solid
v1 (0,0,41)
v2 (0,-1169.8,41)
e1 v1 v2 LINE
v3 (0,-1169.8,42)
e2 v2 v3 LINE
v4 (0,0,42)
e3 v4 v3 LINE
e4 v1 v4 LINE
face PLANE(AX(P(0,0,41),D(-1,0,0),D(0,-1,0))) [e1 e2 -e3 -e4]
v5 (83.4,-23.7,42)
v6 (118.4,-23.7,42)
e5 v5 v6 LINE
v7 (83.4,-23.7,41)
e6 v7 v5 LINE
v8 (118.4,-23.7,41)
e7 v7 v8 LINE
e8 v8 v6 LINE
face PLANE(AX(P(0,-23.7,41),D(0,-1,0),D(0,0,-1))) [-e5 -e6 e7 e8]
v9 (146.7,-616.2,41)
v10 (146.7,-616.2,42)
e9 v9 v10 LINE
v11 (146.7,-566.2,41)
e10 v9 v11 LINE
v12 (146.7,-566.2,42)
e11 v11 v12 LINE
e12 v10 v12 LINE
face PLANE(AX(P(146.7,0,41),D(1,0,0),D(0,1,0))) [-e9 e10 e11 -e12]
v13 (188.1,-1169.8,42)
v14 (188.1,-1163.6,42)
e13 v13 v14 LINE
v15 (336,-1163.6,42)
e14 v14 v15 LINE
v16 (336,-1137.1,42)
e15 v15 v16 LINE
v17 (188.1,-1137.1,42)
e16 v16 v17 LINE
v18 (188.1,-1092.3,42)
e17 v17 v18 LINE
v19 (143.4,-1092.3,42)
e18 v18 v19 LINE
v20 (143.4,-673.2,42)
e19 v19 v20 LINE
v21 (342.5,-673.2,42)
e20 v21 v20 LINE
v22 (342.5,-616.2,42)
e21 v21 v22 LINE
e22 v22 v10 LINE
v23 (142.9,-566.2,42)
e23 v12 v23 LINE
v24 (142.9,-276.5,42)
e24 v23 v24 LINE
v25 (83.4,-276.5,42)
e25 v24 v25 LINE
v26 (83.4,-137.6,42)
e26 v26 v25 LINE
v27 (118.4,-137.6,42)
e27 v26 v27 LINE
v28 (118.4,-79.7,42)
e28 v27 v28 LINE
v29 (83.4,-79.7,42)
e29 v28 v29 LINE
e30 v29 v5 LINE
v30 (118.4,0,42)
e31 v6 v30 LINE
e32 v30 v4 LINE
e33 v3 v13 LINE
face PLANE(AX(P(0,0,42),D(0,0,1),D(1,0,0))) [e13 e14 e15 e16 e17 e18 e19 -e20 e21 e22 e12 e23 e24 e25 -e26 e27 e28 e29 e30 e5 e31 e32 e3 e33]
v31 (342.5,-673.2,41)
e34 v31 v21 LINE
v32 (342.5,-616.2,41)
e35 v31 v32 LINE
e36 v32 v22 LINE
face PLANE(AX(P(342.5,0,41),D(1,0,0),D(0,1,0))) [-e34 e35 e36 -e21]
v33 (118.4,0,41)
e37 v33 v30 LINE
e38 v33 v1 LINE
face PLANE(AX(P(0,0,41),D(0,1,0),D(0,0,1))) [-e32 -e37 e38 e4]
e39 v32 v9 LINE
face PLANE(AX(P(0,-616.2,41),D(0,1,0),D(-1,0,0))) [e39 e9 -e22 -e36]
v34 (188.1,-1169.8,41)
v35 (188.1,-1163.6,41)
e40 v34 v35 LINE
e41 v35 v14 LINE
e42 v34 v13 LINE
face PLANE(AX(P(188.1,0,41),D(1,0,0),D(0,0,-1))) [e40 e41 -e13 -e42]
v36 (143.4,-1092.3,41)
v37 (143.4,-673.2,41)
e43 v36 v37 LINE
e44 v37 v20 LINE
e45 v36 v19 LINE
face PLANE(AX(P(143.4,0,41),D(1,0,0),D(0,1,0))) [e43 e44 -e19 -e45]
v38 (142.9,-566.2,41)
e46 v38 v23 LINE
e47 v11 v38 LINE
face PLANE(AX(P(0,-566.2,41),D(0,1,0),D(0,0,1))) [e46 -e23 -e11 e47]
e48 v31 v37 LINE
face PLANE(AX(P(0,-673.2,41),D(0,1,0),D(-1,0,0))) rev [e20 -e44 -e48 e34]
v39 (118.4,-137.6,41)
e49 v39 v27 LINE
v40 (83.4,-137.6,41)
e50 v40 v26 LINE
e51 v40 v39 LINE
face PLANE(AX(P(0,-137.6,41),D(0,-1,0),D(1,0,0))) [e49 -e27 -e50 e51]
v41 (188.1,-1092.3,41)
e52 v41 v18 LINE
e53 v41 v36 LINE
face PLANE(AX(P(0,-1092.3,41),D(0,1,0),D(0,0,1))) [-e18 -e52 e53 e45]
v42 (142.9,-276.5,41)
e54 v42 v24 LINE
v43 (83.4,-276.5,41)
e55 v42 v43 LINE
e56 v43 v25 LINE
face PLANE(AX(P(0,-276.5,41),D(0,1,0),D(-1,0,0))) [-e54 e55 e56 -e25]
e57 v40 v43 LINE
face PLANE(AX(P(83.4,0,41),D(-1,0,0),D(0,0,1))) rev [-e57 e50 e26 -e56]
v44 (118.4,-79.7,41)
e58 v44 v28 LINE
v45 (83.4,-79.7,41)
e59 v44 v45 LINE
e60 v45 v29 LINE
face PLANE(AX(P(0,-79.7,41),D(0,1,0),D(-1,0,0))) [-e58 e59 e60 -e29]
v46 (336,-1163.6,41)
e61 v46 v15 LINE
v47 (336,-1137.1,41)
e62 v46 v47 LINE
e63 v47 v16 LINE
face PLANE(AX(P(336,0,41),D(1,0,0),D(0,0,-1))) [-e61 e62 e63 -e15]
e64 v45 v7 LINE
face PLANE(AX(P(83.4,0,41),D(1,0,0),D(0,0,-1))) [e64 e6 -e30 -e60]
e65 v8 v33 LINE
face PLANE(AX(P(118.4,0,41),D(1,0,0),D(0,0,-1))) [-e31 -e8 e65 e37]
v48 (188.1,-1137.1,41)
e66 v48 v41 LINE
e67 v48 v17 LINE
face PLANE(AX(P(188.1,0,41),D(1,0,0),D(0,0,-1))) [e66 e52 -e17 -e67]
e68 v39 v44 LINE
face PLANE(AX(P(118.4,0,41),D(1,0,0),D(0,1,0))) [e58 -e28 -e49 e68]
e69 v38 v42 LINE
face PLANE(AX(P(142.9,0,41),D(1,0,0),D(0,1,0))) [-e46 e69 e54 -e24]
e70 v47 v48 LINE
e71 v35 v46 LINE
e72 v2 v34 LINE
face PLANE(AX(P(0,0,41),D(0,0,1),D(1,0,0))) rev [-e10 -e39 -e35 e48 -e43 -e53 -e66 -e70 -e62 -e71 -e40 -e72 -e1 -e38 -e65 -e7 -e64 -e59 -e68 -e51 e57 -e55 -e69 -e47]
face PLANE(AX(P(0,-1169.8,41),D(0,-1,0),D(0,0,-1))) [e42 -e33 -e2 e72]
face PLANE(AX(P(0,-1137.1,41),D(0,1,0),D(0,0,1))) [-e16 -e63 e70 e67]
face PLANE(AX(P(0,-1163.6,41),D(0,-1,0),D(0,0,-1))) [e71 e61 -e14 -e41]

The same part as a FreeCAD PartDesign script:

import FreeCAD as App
import Part
import Sketcher

V = App.Vector

doc = App.newDocument("Part")
params = doc.addObject("Spreadsheet::Sheet", "Params")
for row, (alias, value) in enumerate([
    ("sketch1_width", "35 mm"),
    ("sketch1_height", "57 mm"),
    ("sketch1_height2", "50 mm"),
    ("sketch1_height3", "56 mm"),
    ("sketch1_width2", "199.1 mm"),
    ("pad1_length", "1 mm"),
], start=1):
    params.set(f"A{row}", alias)
    params.set(f"B{row}", "=" + value)
    params.setAlias(f"B{row}", alias)

body = doc.addObject("PartDesign::Body", "Body")

# Sketch on XY plane
sketch1 = doc.addObject("Sketcher::SketchObject", "Sketch")
body.addObject(sketch1)
sketch1.AttachmentSupport = (doc.XY_Plane, [""])
sketch1.MapMode = "FlatFace"
sketch1.AttachmentOffset = App.Placement(V(0, 0, 42), App.Rotation())
sketch1.addGeometry([
    Part.LineSegment(V(143.4, -1092.3, 0), V(143.4, -673.2, 0)),  # 0
    Part.LineSegment(V(143.4, -673.2, 0), V(342.5, -673.2, 0)),  # 1
    Part.LineSegment(V(342.5, -673.2, 0), V(342.5, -616.2, 0)),  # 2
    Part.LineSegment(V(342.5, -616.2, 0), V(146.7, -616.2, 0)),  # 3
    Part.LineSegment(V(146.7, -616.2, 0), V(146.7, -566.2, 0)),  # 4
    Part.LineSegment(V(146.7, -566.2, 0), V(142.9, -566.2, 0)),  # 5
    Part.LineSegment(V(142.9, -566.2, 0), V(142.9, -276.5, 0)),  # 6
    Part.LineSegment(V(142.9, -276.5, 0), V(83.4, -276.5, 0)),  # 7
    Part.LineSegment(V(83.4, -276.5, 0), V(83.4, -137.6, 0)),  # 8
    Part.LineSegment(V(83.4, -137.6, 0), V(118.4, -137.6, 0)),  # 9
    Part.LineSegment(V(118.4, -137.6, 0), V(118.4, -79.7, 0)),  # 10
    Part.LineSegment(V(118.4, -79.7, 0), V(83.4, -79.7, 0)),  # 11
    Part.LineSegment(V(83.4, -79.7, 0), V(83.4, -23.7, 0)),  # 12
    Part.LineSegment(V(83.4, -23.7, 0), V(118.4, -23.7, 0)),  # 13
    Part.LineSegment(V(118.4, -23.7, 0), V(118.4, 0, 0)),  # 14
    Part.LineSegment(V(118.4, 0, 0), V(0, 0, 0)),  # 15
    Part.LineSegment(V(0, 0, 0), V(0, -1169.8, 0)),  # 16
    Part.LineSegment(V(0, -1169.8, 0), V(188.1, -1169.8, 0)),  # 17
    Part.LineSegment(V(188.1, -1169.8, 0), V(188.1, -1163.6, 0)),  # 18
    Part.LineSegment(V(188.1, -1163.6, 0), V(336, -1163.6, 0)),  # 19
    Part.LineSegment(V(336, -1163.6, 0), V(336, -1137.1, 0)),  # 20
    Part.LineSegment(V(336, -1137.1, 0), V(188.1, -1137.1, 0)),  # 21
    Part.LineSegment(V(188.1, -1137.1, 0), V(188.1, -1092.3, 0)),  # 22
    Part.LineSegment(V(188.1, -1092.3, 0), V(143.4, -1092.3, 0)),  # 23
], False)
sketch1.addConstraint([
    Sketcher.Constraint("Coincident", 0, 2, 1, 1),
    Sketcher.Constraint("Coincident", 1, 2, 2, 1),
    Sketcher.Constraint("Coincident", 2, 2, 3, 1),
    Sketcher.Constraint("Coincident", 3, 2, 4, 1),
    Sketcher.Constraint("Coincident", 4, 2, 5, 1),
    Sketcher.Constraint("Coincident", 5, 2, 6, 1),
    Sketcher.Constraint("Coincident", 6, 2, 7, 1),
    Sketcher.Constraint("Coincident", 7, 2, 8, 1),
    Sketcher.Constraint("Coincident", 8, 2, 9, 1),
    Sketcher.Constraint("Coincident", 9, 2, 10, 1),
    Sketcher.Constraint("Coincident", 10, 2, 11, 1),
    Sketcher.Constraint("Coincident", 11, 2, 12, 1),
    Sketcher.Constraint("Coincident", 12, 2, 13, 1),
    Sketcher.Constraint("Coincident", 13, 2, 14, 1),
    Sketcher.Constraint("Coincident", 14, 2, 15, 1),
    Sketcher.Constraint("Coincident", 15, 2, 16, 1),
    Sketcher.Constraint("Coincident", 16, 2, 17, 1),
    Sketcher.Constraint("Coincident", 17, 2, 18, 1),
    Sketcher.Constraint("Coincident", 18, 2, 19, 1),
    Sketcher.Constraint("Coincident", 19, 2, 20, 1),
    Sketcher.Constraint("Coincident", 20, 2, 21, 1),
    Sketcher.Constraint("Coincident", 21, 2, 22, 1),
    Sketcher.Constraint("Coincident", 22, 2, 23, 1),
    Sketcher.Constraint("Coincident", 23, 2, 0, 1),
    Sketcher.Constraint("Vertical", 0),
    Sketcher.Constraint("Horizontal", 1),
    Sketcher.Constraint("Vertical", 2),
    Sketcher.Constraint("Horizontal", 3),
    Sketcher.Constraint("Vertical", 4),
    Sketcher.Constraint("Horizontal", 5),
    Sketcher.Constraint("Vertical", 6),
    Sketcher.Constraint("Horizontal", 7),
    Sketcher.Constraint("Vertical", 8),
    Sketcher.Constraint("Horizontal", 9),
    Sketcher.Constraint("Vertical", 10),
    Sketcher.Constraint("Horizontal", 11),
    Sketcher.Constraint("Vertical", 12),
    Sketcher.Constraint("Horizontal", 13),
    Sketcher.Constraint("Vertical", 14),
    Sketcher.Constraint("Horizontal", 15),
    Sketcher.Constraint("Vertical", 16),
    Sketcher.Constraint("Horizontal", 17),
    Sketcher.Constraint("Vertical", 18),
    Sketcher.Constraint("Horizontal", 19),
    Sketcher.Constraint("Vertical", 20),
    Sketcher.Constraint("Horizontal", 21),
    Sketcher.Constraint("Vertical", 22),
    Sketcher.Constraint("Horizontal", 23),
    Sketcher.Constraint("Coincident", 15, 2, -1, 1),
    Sketcher.Constraint("Vertical", 8, 2, 11, 2),
    Sketcher.Constraint("Vertical", 10, 2, 13, 2),
    Sketcher.Constraint("Vertical", 18, 2, 21, 2),
    Sketcher.Constraint("DistanceX", 9, 1, 9, 2, 35.0),
    Sketcher.Constraint("DistanceY", 2, 1, 2, 2, 57.0),
    Sketcher.Constraint("DistanceY", 4, 1, 4, 2, 50.0),
    Sketcher.Constraint("DistanceY", 12, 1, 12, 2, 56.0),
    Sketcher.Constraint("DistanceX", 1, 1, 1, 2, 199.1),
    Sketcher.Constraint("DistanceX", 3, 2, 3, 1, 195.8),
    Sketcher.Constraint("DistanceX", 5, 2, 5, 1, 3.8),
    Sketcher.Constraint("DistanceX", 7, 2, 7, 1, 59.5),
    Sketcher.Constraint("DistanceX", 15, 2, 15, 1, 118.4),
    Sketcher.Constraint("DistanceX", 17, 1, 17, 2, 188.1),
    Sketcher.Constraint("DistanceX", 19, 1, 19, 2, 147.9),
    Sketcher.Constraint("DistanceY", 0, 1, 0, 2, 419.1),
    Sketcher.Constraint("DistanceY", 6, 1, 6, 2, 289.7),
    Sketcher.Constraint("DistanceY", 8, 1, 8, 2, 138.9),
    Sketcher.Constraint("DistanceY", 10, 1, 10, 2, 57.9),
    Sketcher.Constraint("DistanceY", 14, 1, 14, 2, 23.7),
    Sketcher.Constraint("DistanceY", 16, 2, 16, 1, 1169.8),
    Sketcher.Constraint("DistanceY", 18, 1, 18, 2, 6.2),
    Sketcher.Constraint("DistanceY", 20, 1, 20, 2, 26.5),
])
sketch1.setExpression("Constraints[52]", "Params.sketch1_width")
sketch1.setExpression("Constraints[53]", "Params.sketch1_height")
sketch1.setExpression("Constraints[54]", "Params.sketch1_height2")
sketch1.setExpression("Constraints[55]", "Params.sketch1_height3")
sketch1.setExpression("Constraints[56]", "Params.sketch1_width2")
pad1 = doc.addObject("PartDesign::Pad", "Pad")
body.addObject(pad1)
pad1.Profile = sketch1
pad1.setExpression("Length", "Params.pad1_length")
pad1.Reversed = True

doc.recompute()
